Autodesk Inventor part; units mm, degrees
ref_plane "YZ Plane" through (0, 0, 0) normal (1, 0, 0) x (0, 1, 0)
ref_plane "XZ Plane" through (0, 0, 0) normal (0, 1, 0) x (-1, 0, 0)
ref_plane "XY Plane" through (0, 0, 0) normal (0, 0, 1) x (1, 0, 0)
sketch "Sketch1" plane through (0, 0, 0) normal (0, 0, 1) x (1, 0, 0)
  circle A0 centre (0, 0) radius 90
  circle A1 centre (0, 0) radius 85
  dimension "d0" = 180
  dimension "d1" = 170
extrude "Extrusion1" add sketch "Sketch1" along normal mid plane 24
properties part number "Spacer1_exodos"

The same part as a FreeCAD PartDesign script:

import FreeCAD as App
import Part
import Sketcher

V = App.Vector
Q = App.Units.Quantity

doc = App.newDocument("Part")
body = doc.addObject("PartDesign::Body", "Body")

sketch1 = body.newObject("Sketcher::SketchObject", "Sketch")
sketch1.AttachmentSupport = (doc.getObject("XY_Plane"), [""])
sketch1.MapMode = "FlatFace"
sketch1.addGeometry(Part.Circle(V(0, 0, 0), V(0, 0, 1), 90), False)
sketch1.addGeometry(Part.Circle(V(0, 0, 0), V(0, 0, 1), 85), False)
sketch1.addConstraint(Sketcher.Constraint("Coincident", 0, 3, -1, 1))
sketch1.addConstraint(Sketcher.Constraint("Coincident", 1, 3, -1, 1))
sketch1.addConstraint(Sketcher.Constraint("Diameter", 0, Q("180 mm")))
sketch1.addConstraint(Sketcher.Constraint("Diameter", 1, Q("170 mm")))
pad1 = body.newObject("PartDesign::Pad", "Pad")
pad1.Profile = sketch1
pad1.Length = 24
pad1.Midplane = True

doc.recompute()
